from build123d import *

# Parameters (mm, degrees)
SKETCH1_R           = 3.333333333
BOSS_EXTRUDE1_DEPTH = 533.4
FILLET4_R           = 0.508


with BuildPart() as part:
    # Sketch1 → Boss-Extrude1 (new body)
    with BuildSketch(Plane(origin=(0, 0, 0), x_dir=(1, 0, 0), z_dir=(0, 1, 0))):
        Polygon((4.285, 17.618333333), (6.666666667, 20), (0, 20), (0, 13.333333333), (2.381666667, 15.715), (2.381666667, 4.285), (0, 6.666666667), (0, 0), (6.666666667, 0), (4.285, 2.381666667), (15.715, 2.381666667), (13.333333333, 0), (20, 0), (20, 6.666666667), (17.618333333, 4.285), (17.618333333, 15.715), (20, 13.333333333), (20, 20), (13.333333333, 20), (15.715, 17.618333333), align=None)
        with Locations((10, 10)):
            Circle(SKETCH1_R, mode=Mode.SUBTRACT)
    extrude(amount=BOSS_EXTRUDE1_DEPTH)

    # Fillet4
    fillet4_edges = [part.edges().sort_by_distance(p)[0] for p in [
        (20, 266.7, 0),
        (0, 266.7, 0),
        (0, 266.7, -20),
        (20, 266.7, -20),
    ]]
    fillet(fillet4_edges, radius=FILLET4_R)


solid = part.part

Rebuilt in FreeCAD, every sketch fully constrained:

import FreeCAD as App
import Part
import Sketcher
Q = App.Units.Quantity


def edges_at(feature, points):
    """Names of the edges that pass closest to the given points."""
    edges = feature.Shape.Edges
    near = lambda p: min(range(len(edges)), key=lambda i: edges[i].distToShape(Part.Vertex(*p))[0])
    return sorted({f"Edge{near(p) + 1}" for p in points})


def add_polygon(sketch, points):
    """Adds a closed chain of lines whose ends are joined by coincident constraints."""
    first, n = sketch.GeometryCount, len(points)
    for a, b in zip(points, points[1:] + points[:1]):
        sketch.addGeometry(Part.LineSegment(App.Vector(*a, 0), App.Vector(*b, 0)), False)
    for i in range(n):
        sketch.addConstraint(Sketcher.Constraint("Coincident", first + i, 2, first + (i + 1) % n, 1))

doc = App.newDocument("Part")
body = doc.addObject("PartDesign::Body", "Body")

# Sketch on XZ plane
sketch1 = body.newObject("Sketcher::SketchObject", "Sketch")
sketch1.AttachmentSupport = (doc.getObject("XZ_Plane"), [""])
sketch1.MapMode = "FlatFace"
add_polygon(sketch1, [(4.3, -17.6), (6.7, -20), (0, -20), (0, -13.3), (2.4, -15.7), (2.4, -4.3), (0, -6.7), (0, 0), (6.7, 0), (4.3, -2.4), (15.7, -2.4), (13.3, 0), (20, 0), (20, -6.7), (17.6, -4.3), (17.6, -15.7), (20, -13.3), (20, -20), (13.3, -20), (15.7, -17.6)])  # lines 0-19
sketch1.addGeometry(Part.Circle(App.Vector(10, -10, 0), App.Vector(0, 0, 1), 3.3), False)  # 20
sketch1.addConstraint([
    Sketcher.Constraint("Horizontal", 1),
    Sketcher.Constraint("Vertical", 2),
    Sketcher.Constraint("Vertical", 4),
    Sketcher.Constraint("Vertical", 6),
    Sketcher.Constraint("Horizontal", 7),
    Sketcher.Constraint("Horizontal", 9),
    Sketcher.Constraint("Horizontal", 11),
    Sketcher.Constraint("Vertical", 12),
    Sketcher.Constraint("Vertical", 14),
    Sketcher.Constraint("Vertical", 16),
    Sketcher.Constraint("Horizontal", 17),
    Sketcher.Constraint("Horizontal", 19),
    Sketcher.Constraint("Coincident", 6, 2, -1, 1),
    Sketcher.Constraint("PointOnObject", 1, 2, -2),
    Sketcher.Constraint("PointOnObject", 10, 2, -1),
    Sketcher.Constraint("Parallel", 0, 3),
    Sketcher.Constraint("Perpendicular", 3, 5),
    Sketcher.Constraint("Parallel", 5, 8),
    Sketcher.Constraint("Perpendicular", 8, 10),
    Sketcher.Constraint("Parallel", 10, 13),
    Sketcher.Constraint("Perpendicular", 13, 15),
    Sketcher.Constraint("Parallel", 15, 18),
    Sketcher.Constraint("Horizontal", 5, 2, 12, 2),
    Sketcher.Constraint("Horizontal", 4, 2, 13, 2),
    Sketcher.Constraint("Horizontal", 3, 2, 14, 2),
    Sketcher.Constraint("Horizontal", 2, 2, 15, 2),
    Sketcher.Constraint("Horizontal", 1, 2, 16, 2),
    Sketcher.Constraint("Vertical", 0, 2, 7, 2),
    Sketcher.Constraint("Vertical", 12, 2, 15, 2),
    Sketcher.Constraint("Vertical", 10, 2, 17, 2),
    Sketcher.Constraint("Vertical", 9, 2, 18, 2),
    Sketcher.Constraint("Equal", 7, 11),
    Sketcher.Constraint("Equal", 17, 2),
    Sketcher.Constraint("Equal", 19, 4),
    Sketcher.Constraint("Equal", 2, 6),
    Sketcher.Constraint("Equal", 0, 3),
    Sketcher.Constraint("DistanceX", 9, 1, 9, 2, Q("0.45 in")),
    Sketcher.Constraint("DistanceY", 3, 2, 20, 3, Q("0.225 in")),
    Sketcher.Constraint("DistanceX", 8, 2, 20, 3, Q("0.225 in")),
    Sketcher.Constraint("Diameter", 20, 6.666667),
    Sketcher.Constraint("DistanceX", -1, 1, 20, 3, 10.0),
    Sketcher.Constraint("DistanceX", 1, 2, 1, 1, 6.666667),
])
pad1 = body.newObject("PartDesign::Pad", "Pad")
pad1.Profile = sketch1
pad1.Length = Q("21 in")
pad1.Reversed = True
doc.recompute()

fillet = body.newObject("PartDesign::Fillet", "Fillet")
fillet.Base = (pad1, edges_at(pad1, [
    (20, 266.7, 0),
    (0, 266.7, 0),
    (0, 266.7, -20),
    (20, 266.7, -20),
]))
fillet.Radius = Q("0.02 in")

doc.recompute()
